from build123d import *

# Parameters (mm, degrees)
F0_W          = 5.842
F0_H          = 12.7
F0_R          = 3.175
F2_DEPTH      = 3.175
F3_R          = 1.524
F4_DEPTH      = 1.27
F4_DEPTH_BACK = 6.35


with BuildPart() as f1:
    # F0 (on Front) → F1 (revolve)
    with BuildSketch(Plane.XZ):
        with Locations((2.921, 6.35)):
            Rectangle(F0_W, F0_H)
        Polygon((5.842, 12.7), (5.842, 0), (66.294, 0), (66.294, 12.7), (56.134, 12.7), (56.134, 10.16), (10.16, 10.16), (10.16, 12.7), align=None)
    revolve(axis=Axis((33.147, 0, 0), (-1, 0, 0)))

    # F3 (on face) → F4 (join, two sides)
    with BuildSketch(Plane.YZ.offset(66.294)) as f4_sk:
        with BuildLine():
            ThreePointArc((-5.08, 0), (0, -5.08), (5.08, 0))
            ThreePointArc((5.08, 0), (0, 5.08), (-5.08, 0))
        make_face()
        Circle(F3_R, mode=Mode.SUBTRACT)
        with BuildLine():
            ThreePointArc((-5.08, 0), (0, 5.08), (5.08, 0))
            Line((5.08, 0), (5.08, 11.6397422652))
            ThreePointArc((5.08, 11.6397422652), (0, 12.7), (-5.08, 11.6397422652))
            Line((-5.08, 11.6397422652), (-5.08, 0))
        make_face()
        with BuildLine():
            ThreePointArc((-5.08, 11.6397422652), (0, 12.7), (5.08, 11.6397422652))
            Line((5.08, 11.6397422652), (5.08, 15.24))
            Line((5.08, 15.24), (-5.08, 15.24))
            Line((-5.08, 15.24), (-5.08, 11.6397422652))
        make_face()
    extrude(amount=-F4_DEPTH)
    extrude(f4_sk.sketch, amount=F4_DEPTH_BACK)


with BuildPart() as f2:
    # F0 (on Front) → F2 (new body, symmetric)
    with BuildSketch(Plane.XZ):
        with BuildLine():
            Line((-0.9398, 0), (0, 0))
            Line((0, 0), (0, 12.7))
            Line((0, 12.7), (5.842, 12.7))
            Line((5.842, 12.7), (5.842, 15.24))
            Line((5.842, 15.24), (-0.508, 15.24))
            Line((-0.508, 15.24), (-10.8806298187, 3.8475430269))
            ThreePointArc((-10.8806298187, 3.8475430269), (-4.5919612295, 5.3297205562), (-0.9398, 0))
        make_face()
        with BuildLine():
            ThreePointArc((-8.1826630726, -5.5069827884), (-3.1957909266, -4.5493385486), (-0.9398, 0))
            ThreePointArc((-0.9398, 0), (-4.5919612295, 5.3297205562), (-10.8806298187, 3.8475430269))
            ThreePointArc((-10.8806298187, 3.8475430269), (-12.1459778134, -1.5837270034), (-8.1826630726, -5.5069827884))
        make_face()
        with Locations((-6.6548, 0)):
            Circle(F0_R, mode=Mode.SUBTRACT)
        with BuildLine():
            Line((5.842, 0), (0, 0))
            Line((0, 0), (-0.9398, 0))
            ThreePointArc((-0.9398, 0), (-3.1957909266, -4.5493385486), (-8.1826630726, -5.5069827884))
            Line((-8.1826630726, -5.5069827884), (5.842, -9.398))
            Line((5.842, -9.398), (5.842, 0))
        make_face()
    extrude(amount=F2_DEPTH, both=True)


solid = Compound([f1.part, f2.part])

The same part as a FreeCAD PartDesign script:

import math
import FreeCAD as App
import Part
import Sketcher

V = App.Vector
Q = App.Units.Quantity

doc = App.newDocument("Part")
body = doc.addObject("PartDesign::Body", "Body")

sketch1 = body.newObject("Sketcher::SketchObject", "Sketch")
sketch1.AttachmentSupport = (doc.getObject("XZ_Plane"), [""])
sketch1.MapMode = "FlatFace"
sketch1.addGeometry(Part.LineSegment(V(0, 12.7, 0), V(0, 0, 0)), False)
sketch1.addGeometry(Part.LineSegment(V(0, 0, 0), V(66.3, 0, 0)), False)
sketch1.addGeometry(Part.LineSegment(V(66.3, 0, 0), V(66.3, 12.7, 0)), False)
sketch1.addGeometry(Part.LineSegment(V(66.3, 12.7, 0), V(56.1, 12.7, 0)), False)
sketch1.addGeometry(Part.LineSegment(V(56.1, 12.7, 0), V(56.1, 10.2, 0)), False)
sketch1.addGeometry(Part.LineSegment(V(56.1, 10.2, 0), V(10.2, 10.2, 0)), False)
sketch1.addGeometry(Part.LineSegment(V(10.2, 10.2, 0), V(10.2, 12.7, 0)), False)
sketch1.addGeometry(Part.LineSegment(V(10.2, 12.7, 0), V(0, 12.7, 0)), False)
sketch1.addConstraint(Sketcher.Constraint("Coincident", 0, 2, 1, 1))
sketch1.addConstraint(Sketcher.Constraint("Coincident", 1, 2, 2, 1))
sketch1.addConstraint(Sketcher.Constraint("Coincident", 2, 2, 3, 1))
sketch1.addConstraint(Sketcher.Constraint("Coincident", 3, 2, 4, 1))
sketch1.addConstraint(Sketcher.Constraint("Coincident", 4, 2, 5, 1))
sketch1.addConstraint(Sketcher.Constraint("Coincident", 5, 2, 6, 1))
sketch1.addConstraint(Sketcher.Constraint("Coincident", 6, 2, 7, 1))
sketch1.addConstraint(Sketcher.Constraint("Coincident", 7, 2, 0, 1))
sketch1.addConstraint(Sketcher.Constraint("Vertical", 0))
sketch1.addConstraint(Sketcher.Constraint("Horizontal", 1))
sketch1.addConstraint(Sketcher.Constraint("Vertical", 2))
sketch1.addConstraint(Sketcher.Constraint("Horizontal", 3))
sketch1.addConstraint(Sketcher.Constraint("Vertical", 4))
sketch1.addConstraint(Sketcher.Constraint("Horizontal", 5))
sketch1.addConstraint(Sketcher.Constraint("Vertical", 6))
sketch1.addConstraint(Sketcher.Constraint("Horizontal", 7))
sketch1.addConstraint(Sketcher.Constraint("Coincident", 0, 2, -1, 1))
sketch1.addConstraint(Sketcher.Constraint("Horizontal", 3, 2, 6, 2))
sketch1.addConstraint(Sketcher.Constraint("Equal", 3, 7))
sketch1.addConstraint(Sketcher.Constraint("DistanceX", 3, 2, 3, 1, Q("0.4 in")))
sketch1.addConstraint(Sketcher.Constraint("DistanceY", 0, 2, 0, 1, Q("0.5 in")))
sketch1.addConstraint(Sketcher.Constraint("DistanceY", 4, 2, 4, 1, Q("0.1 in")))
sketch1.addConstraint(Sketcher.Constraint("DistanceX", 1, 1, 1, 2, Q("2.61 in")))
revolution = body.newObject("PartDesign::Revolution", "Revolution")
revolution.Profile = sketch1
revolution.ReferenceAxis = (sketch1, ["H_Axis"])
revolution.Angle = 360

sketch2 = body.newObject("Sketcher::SketchObject", "Sketch001")
sketch2.AttachmentSupport = (doc.getObject("YZ_Plane"), [""])
sketch2.MapMode = "FlatFace"
sketch2.AttachmentOffset = App.Placement(V(0, 0, 2.61 * 25.4), App.Rotation())
sketch2.addGeometry(Part.ArcOfCircle(Part.Circle(V(0, 0, 0), V(0, 0, 1), 5.1), math.radians(180), math.radians(360)), False)
sketch2.addGeometry(Part.LineSegment(V(5.1, 0, 0), V(5.1, 15.2, 0)), False)
sketch2.addGeometry(Part.LineSegment(V(5.1, 15.2, 0), V(-5.1, 15.2, 0)), False)
sketch2.addGeometry(Part.LineSegment(V(-5.1, 15.2, 0), V(-5.1, 0, 0)), False)
sketch2.addGeometry(Part.Circle(V(0, 0, 0), V(0, 0, 1), 1.5), False)
sketch2.addConstraint(Sketcher.Constraint("Tangent", 0, 2, 1, 1))
sketch2.addConstraint(Sketcher.Constraint("Coincident", 1, 2, 2, 1))
sketch2.addConstraint(Sketcher.Constraint("Coincident", 2, 2, 3, 1))
sketch2.addConstraint(Sketcher.Constraint("Tangent", 3, 2, 0, 1))
sketch2.addConstraint(Sketcher.Constraint("Vertical", 1))
sketch2.addConstraint(Sketcher.Constraint("Horizontal", 2))
sketch2.addConstraint(Sketcher.Constraint("Vertical", 3))
sketch2.addConstraint(Sketcher.Constraint("Coincident", 0, 3, -1, 1))
sketch2.addConstraint(Sketcher.Constraint("Coincident", 4, 3, -1, 1))
sketch2.addConstraint(Sketcher.Constraint("Radius", 0, Q("0.2 in")))
sketch2.addConstraint(Sketcher.Constraint("Diameter", 4, Q("0.12 in")))
sketch2.addConstraint(Sketcher.Constraint("DistanceY", 1, 1, 1, 2, Q("0.6 in")))
pad1 = body.newObject("PartDesign::Pad", "Pad")
pad1.Profile = sketch2
pad1.Type = "TwoLengths"
pad1.Length = Q("0.05 in")
pad1.Length2 = Q("0.25 in")
pad1.Reversed = True
body2 = doc.addObject("PartDesign::Body", "Body001")

sketch3 = body2.newObject("Sketcher::SketchObject", "Sketch002")
sketch3.AttachmentSupport = (doc.getObject("XZ_Plane001"), [""])
sketch3.MapMode = "FlatFace"
sketch3.addGeometry(Part.LineSegment(V(0, 0, 0), V(0, 12.7, 0)), False)
sketch3.addGeometry(Part.LineSegment(V(0, 12.7, 0), V(5.8, 12.7, 0)), False)
sketch3.addGeometry(Part.LineSegment(V(5.8, 12.7, 0), V(5.8, 15.2, 0)), False)
sketch3.addGeometry(Part.LineSegment(V(5.8, 15.2, 0), V(-0.5, 15.2, 0)), False)
sketch3.addGeometry(Part.LineSegment(V(-0.5, 15.2, 0), V(-10.9, 3.8, 0)), False)
sketch3.addGeometry(Part.ArcOfCircle(Part.Circle(V(-6.7, 0, 0), V(0, 0, 1), 5.7), math.radians(138), math.radians(254)), False)
sketch3.addGeometry(Part.LineSegment(V(-8.2, -5.5, 0), V(5.8, -9.4, 0)), False)
sketch3.addGeometry(Part.LineSegment(V(5.8, -9.4, 0), V(5.8, 0, 0)), False)
sketch3.addGeometry(Part.LineSegment(V(5.8, 0, 0), V(0, 0, 0)), False)
sketch3.addGeometry(Part.Circle(V(-6.7, 0, 0), V(0, 0, 1), 3.2), False)
sketch3.addConstraint(Sketcher.Constraint("Coincident", 0, 2, 1, 1))
sketch3.addConstraint(Sketcher.Constraint("Coincident", 1, 2, 2, 1))
sketch3.addConstraint(Sketcher.Constraint("Coincident", 2, 2, 3, 1))
sketch3.addConstraint(Sketcher.Constraint("Coincident", 3, 2, 4, 1))
sketch3.addConstraint(Sketcher.Constraint("Tangent", 4, 2, 5, 1))
sketch3.addConstraint(Sketcher.Constraint("Tangent", 5, 2, 6, 1))
sketch3.addConstraint(Sketcher.Constraint("Coincident", 6, 2, 7, 1))
sketch3.addConstraint(Sketcher.Constraint("Coincident", 7, 2, 8, 1))
sketch3.addConstraint(Sketcher.Constraint("Coincident", 8, 2, 0, 1))
sketch3.addConstraint(Sketcher.Constraint("Vertical", 0))
sketch3.addConstraint(Sketcher.Constraint("Horizontal", 1))
sketch3.addConstraint(Sketcher.Constraint("Vertical", 2))
sketch3.addConstraint(Sketcher.Constraint("Horizontal", 3))
sketch3.addConstraint(Sketcher.Constraint("Vertical", 7))
sketch3.addConstraint(Sketcher.Constraint("Horizontal", 8))
sketch3.addConstraint(Sketcher.Constraint("Coincident", 8, 2, -1, 1))
sketch3.addConstraint(Sketcher.Constraint("Coincident", 9, 3, 5, 3))
sketch3.addConstraint(Sketcher.Constraint("PointOnObject", 5, 3, -1))
sketch3.addConstraint(Sketcher.Constraint("Vertical", 2, 2, 6, 2))
sketch3.addConstraint(Sketcher.Constraint("Diameter", 9, Q("0.25 in")))
sketch3.addConstraint(Sketcher.Constraint("DistanceY", 0, 1, 0, 2, Q("0.5 in")))
sketch3.addConstraint(Sketcher.Constraint("DistanceY", 2, 1, 2, 2, Q("0.1 in")))
sketch3.addConstraint(Sketcher.Constraint("Radius", 5, Q("0.225 in")))
sketch3.addConstraint(Sketcher.Constraint("DistanceX", 1, 1, 1, 2, Q("0.23 in")))
sketch3.addConstraint(Sketcher.Constraint("DistanceX", 3, 2, 3, 1, Q("0.25 in")))
sketch3.addConstraint(Sketcher.Constraint("DistanceY", 7, 1, 7, 2, Q("0.37 in")))
sketch3.addConstraint(Sketcher.Constraint("DistanceX", 5, 3, -1, 1, Q("0.262 in")))
pad2 = body2.newObject("PartDesign::Pad", "Pad001")
pad2.Profile = sketch3
pad2.Length = Q("0.25 in")
pad2.Midplane = True

doc.recompute()
